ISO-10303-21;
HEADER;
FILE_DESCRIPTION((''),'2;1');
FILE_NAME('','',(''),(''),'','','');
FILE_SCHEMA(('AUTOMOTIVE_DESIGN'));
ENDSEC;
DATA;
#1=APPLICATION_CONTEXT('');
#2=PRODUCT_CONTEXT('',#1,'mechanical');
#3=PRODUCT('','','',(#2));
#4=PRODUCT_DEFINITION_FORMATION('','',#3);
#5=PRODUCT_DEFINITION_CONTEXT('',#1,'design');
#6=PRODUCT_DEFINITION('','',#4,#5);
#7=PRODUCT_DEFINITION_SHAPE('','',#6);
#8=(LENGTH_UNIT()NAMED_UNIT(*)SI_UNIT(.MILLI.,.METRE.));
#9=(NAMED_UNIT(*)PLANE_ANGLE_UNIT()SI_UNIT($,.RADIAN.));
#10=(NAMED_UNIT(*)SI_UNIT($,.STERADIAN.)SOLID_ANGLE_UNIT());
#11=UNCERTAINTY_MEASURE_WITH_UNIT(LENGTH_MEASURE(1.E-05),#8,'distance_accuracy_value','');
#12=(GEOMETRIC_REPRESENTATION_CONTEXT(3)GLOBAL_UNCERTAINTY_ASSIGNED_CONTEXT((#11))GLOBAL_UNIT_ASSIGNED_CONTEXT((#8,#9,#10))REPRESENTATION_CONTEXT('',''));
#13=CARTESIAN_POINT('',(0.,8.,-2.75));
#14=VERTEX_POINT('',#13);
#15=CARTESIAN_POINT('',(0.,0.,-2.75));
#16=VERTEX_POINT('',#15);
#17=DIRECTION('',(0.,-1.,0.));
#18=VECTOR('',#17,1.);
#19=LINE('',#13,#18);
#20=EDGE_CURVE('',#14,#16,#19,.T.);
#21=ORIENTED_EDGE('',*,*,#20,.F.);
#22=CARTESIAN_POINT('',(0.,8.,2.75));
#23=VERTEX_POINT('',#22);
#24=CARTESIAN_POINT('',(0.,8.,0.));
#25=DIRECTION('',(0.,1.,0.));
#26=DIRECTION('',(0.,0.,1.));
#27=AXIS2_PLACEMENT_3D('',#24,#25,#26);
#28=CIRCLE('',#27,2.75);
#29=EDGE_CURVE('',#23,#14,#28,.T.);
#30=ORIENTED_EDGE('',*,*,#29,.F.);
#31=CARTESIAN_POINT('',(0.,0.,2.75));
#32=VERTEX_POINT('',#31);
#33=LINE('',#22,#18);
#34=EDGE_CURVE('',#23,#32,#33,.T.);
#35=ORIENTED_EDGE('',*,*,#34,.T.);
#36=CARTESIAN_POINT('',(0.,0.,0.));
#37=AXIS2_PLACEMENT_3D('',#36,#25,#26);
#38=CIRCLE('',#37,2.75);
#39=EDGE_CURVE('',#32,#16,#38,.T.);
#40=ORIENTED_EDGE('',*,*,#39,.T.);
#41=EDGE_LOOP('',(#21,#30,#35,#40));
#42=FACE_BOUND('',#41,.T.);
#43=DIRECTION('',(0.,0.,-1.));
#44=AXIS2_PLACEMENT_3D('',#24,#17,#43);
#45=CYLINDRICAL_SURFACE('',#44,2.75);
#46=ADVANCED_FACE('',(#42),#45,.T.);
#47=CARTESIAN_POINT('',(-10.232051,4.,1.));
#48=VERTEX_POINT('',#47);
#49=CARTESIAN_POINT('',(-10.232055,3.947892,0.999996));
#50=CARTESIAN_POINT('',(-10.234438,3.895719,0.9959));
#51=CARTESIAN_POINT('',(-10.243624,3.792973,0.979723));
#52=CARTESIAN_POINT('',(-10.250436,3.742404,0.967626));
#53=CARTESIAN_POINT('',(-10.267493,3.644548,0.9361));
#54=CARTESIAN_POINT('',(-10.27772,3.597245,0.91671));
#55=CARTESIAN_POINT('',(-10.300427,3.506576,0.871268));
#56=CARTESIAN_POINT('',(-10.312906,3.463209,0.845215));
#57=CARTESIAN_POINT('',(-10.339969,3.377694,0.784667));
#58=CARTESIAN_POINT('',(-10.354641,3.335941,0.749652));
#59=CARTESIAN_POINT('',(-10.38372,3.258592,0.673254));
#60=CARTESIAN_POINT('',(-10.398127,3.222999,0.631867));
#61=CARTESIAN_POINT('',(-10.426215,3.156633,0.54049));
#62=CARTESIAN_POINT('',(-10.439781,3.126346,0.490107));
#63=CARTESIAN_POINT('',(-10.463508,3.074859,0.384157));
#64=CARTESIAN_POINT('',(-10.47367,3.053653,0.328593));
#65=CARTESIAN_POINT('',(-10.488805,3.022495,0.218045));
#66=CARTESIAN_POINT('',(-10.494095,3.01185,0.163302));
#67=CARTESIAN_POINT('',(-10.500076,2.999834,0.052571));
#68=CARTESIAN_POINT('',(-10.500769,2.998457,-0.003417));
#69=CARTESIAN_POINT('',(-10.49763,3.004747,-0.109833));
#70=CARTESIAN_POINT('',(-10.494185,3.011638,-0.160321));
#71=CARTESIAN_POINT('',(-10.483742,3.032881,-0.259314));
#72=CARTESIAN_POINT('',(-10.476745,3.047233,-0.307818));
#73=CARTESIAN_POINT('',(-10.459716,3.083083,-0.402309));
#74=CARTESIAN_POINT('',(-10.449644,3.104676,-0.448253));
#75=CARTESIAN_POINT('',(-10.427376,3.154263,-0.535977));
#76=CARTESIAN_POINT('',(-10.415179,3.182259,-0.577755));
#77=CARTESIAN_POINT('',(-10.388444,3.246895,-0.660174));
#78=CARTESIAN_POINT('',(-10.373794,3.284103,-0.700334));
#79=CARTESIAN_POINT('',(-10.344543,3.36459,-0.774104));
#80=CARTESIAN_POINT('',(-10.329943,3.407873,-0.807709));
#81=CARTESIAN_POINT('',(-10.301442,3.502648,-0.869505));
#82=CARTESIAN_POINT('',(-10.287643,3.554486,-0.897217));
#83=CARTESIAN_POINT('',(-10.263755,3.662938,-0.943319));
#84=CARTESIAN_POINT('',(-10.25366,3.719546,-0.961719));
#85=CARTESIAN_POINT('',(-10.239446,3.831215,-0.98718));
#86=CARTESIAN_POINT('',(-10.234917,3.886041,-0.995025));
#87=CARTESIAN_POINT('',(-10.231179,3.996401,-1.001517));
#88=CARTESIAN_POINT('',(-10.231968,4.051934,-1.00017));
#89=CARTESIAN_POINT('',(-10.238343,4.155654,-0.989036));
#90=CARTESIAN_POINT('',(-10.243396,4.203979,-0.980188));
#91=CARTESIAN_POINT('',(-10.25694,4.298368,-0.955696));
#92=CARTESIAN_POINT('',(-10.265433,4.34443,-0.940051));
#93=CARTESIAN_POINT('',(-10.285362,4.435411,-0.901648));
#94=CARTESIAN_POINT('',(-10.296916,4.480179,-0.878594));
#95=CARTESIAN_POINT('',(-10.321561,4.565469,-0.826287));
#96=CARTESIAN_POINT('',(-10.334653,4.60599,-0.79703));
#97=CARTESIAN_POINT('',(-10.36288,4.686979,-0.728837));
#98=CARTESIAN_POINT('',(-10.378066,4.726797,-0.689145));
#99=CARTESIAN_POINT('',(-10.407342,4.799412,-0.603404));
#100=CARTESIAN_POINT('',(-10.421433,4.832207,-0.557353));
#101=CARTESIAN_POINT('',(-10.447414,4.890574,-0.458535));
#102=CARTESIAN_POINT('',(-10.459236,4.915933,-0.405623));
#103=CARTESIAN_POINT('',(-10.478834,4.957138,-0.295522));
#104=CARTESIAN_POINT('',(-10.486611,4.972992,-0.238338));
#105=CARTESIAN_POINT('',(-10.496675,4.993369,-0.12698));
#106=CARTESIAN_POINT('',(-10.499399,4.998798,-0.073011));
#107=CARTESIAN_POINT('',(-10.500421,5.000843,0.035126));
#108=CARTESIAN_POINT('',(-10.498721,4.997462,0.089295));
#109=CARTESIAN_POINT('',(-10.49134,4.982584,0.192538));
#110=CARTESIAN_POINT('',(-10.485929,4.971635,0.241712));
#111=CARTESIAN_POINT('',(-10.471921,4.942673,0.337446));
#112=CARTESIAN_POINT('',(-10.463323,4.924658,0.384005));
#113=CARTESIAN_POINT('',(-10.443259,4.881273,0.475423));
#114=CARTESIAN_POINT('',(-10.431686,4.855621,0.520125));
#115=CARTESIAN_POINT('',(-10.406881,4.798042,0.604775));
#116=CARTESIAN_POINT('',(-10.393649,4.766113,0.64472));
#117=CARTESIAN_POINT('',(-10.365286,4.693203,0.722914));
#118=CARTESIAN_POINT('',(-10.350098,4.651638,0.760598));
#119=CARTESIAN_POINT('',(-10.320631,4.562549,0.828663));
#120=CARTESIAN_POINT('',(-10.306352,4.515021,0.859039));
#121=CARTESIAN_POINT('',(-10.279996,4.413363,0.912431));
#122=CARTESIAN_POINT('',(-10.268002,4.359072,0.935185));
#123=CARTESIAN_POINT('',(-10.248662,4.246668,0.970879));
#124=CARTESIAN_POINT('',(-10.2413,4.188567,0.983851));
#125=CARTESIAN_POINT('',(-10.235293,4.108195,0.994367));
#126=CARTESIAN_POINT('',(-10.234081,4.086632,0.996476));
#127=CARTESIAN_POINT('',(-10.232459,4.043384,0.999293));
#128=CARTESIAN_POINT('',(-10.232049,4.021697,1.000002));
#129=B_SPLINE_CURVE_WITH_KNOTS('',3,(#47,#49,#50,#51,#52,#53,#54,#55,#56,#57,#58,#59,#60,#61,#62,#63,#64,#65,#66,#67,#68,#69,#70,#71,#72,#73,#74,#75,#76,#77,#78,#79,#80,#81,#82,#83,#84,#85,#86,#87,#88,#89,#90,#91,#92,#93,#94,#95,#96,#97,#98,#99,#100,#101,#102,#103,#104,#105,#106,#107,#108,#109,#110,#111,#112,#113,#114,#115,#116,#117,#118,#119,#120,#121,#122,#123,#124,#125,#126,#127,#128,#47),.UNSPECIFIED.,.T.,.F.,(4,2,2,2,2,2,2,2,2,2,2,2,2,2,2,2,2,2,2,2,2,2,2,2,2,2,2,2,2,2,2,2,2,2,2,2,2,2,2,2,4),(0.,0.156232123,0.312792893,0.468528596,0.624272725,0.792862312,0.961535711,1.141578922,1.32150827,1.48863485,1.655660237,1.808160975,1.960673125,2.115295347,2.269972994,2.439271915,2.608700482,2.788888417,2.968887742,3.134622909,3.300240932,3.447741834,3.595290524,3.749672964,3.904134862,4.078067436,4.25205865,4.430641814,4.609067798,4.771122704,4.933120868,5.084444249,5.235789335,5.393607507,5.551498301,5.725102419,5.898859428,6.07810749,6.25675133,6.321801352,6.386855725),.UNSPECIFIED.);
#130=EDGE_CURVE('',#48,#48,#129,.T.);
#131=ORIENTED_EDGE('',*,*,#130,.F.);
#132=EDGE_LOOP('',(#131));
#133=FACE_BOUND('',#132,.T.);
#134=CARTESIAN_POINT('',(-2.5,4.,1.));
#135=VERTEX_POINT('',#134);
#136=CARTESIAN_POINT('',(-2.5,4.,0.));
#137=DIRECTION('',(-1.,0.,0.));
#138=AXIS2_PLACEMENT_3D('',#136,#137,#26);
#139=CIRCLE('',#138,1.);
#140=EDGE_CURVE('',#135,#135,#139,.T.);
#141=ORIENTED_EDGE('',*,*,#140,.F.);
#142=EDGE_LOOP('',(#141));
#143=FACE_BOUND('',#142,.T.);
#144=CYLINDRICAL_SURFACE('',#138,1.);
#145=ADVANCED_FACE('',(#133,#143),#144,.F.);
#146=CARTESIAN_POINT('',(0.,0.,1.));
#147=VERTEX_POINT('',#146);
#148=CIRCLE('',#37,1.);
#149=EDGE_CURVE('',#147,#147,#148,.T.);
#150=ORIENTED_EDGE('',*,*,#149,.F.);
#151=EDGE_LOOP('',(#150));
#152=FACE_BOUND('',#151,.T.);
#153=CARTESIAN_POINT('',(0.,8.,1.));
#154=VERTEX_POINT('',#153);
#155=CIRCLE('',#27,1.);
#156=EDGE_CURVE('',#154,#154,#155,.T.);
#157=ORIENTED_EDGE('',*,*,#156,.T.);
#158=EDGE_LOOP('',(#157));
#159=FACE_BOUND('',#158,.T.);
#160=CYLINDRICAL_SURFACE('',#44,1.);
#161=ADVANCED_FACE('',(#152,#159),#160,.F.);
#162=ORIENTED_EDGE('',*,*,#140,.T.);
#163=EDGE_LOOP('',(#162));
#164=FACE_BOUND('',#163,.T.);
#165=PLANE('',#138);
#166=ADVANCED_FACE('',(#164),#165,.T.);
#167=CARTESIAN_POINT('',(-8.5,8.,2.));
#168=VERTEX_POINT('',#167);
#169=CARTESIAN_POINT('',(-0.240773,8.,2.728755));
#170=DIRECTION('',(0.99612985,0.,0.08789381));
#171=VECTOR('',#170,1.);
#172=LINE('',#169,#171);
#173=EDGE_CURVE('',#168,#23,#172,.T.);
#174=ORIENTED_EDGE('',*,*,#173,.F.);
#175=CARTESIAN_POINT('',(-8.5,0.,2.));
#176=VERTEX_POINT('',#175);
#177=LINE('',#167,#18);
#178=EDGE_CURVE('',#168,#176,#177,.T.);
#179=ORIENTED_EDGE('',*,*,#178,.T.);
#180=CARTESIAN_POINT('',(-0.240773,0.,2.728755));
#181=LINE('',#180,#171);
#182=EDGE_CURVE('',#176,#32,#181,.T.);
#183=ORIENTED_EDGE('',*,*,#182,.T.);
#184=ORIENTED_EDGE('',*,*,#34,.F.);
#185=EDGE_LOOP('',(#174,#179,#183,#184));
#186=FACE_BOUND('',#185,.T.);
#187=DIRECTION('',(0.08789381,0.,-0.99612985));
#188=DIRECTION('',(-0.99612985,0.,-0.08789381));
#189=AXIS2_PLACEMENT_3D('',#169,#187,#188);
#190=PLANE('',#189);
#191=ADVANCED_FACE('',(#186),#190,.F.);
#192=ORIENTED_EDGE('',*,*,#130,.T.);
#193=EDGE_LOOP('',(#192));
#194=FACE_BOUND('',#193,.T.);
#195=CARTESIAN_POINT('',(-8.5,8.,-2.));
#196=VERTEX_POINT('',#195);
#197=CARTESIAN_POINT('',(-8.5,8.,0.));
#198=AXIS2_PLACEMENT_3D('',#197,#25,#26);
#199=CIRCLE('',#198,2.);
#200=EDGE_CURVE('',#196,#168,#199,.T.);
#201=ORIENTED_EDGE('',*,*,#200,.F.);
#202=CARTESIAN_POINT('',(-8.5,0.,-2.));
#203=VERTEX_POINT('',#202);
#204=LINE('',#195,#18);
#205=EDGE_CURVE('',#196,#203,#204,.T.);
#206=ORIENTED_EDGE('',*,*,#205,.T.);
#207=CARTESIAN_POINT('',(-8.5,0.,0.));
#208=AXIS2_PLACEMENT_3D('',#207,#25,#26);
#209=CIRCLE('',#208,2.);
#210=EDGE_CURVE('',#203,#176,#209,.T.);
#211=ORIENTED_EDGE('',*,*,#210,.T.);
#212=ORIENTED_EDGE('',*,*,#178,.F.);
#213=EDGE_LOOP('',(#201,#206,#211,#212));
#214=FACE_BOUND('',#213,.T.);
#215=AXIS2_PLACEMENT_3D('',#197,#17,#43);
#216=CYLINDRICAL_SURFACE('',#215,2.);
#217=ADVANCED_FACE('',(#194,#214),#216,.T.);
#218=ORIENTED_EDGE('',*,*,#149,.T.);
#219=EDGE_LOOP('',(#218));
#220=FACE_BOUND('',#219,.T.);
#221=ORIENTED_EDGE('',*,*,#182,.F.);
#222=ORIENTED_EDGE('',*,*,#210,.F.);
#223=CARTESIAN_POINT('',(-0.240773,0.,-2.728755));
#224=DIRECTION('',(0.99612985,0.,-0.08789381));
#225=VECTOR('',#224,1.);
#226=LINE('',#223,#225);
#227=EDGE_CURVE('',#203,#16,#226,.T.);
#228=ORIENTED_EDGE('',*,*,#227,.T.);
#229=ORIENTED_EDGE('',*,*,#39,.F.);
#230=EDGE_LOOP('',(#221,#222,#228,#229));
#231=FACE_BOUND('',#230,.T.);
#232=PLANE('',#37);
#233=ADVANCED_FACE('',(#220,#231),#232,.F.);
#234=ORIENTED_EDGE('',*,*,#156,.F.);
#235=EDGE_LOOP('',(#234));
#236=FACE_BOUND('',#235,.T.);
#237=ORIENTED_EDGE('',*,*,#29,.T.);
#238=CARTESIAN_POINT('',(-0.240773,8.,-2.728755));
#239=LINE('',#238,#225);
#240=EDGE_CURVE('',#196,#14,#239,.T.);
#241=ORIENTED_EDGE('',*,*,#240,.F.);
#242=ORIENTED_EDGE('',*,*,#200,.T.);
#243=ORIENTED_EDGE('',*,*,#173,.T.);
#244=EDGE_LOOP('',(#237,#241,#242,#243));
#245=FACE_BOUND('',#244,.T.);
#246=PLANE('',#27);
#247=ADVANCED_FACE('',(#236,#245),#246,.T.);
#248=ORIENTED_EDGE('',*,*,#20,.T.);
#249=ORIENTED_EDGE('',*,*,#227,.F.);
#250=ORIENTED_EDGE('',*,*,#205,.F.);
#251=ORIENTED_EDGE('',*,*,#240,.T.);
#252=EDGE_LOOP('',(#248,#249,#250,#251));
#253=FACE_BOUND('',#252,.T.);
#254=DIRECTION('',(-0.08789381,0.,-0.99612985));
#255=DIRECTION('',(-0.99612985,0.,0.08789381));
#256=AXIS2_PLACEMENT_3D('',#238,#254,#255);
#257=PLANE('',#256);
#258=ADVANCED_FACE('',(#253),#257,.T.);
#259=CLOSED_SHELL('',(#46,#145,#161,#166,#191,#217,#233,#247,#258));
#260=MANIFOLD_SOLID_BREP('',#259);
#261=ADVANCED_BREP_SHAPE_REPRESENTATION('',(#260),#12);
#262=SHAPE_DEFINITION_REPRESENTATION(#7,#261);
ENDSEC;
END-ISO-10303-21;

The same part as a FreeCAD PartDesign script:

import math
import FreeCAD as App
import Part
import Sketcher

V = App.Vector

doc = App.newDocument("Part")
body = doc.addObject("PartDesign::Body", "Body")

# Sketch on XZ plane
sketch1 = doc.addObject("Sketcher::SketchObject", "Sketch")
body.addObject(sketch1)
sketch1.AttachmentSupport = (doc.XZ_Plane, [""])
sketch1.MapMode = "FlatFace"
sketch1.addGeometry([
    Part.LineSegment(V(-0.481545, -2.707511, 0), V(-8.5, -2, 0)),  # 0
    Part.ArcOfCircle(Part.Circle(V(-8.5, 0, 0), V(0, 0, 1), 2), math.radians(90), math.radians(270)),  # 1
    Part.LineSegment(V(-8.5, 2, 0), V(-0.481545, 2.707511, 0)),  # 2
    Part.LineSegment(V(-0.481545, 2.707511, 0), V(0, 2.75, 0)),  # 3
    Part.ArcOfCircle(Part.Circle(V(0, 0, 0), V(0, 0, 1), 2.75), math.radians(-90), math.radians(90)),  # 4
    Part.LineSegment(V(0, -2.75, 0), V(-0.481545, -2.707511, 0)),  # 5
    Part.Circle(V(0, 0, 0), V(0, 0, 1), 1),  # 6
], False)
sketch1.addConstraint([
    Sketcher.Constraint("Coincident", 0, 2, 1, 2),
    Sketcher.Constraint("Coincident", 1, 1, 2, 1),
    Sketcher.Constraint("Coincident", 2, 2, 3, 1),
    Sketcher.Constraint("Coincident", 3, 2, 4, 2),
    Sketcher.Constraint("Coincident", 4, 1, 5, 1),
    Sketcher.Constraint("Coincident", 5, 2, 0, 1),
    Sketcher.Constraint("Coincident", 4, 3, -1, 1),
    Sketcher.Constraint("Coincident", 6, 3, -1, 1),
    Sketcher.Constraint("Symmetric", 0, 2, 1, 1, -1),
    Sketcher.Constraint("Symmetric", 2, 2, 5, 2, -1),
    Sketcher.Constraint("PointOnObject", 3, 2, -2),
    Sketcher.Constraint("PointOnObject", 4, 1, -2),
    Sketcher.Constraint("Parallel", 2, 3),
    Sketcher.Constraint("Vertical", 1, 3, 0, 2),
    Sketcher.Constraint("Diameter", 6, 2.0),
    Sketcher.Constraint("Radius", 1, 2.0),
    Sketcher.Constraint("Radius", 4, 2.75),
    Sketcher.Constraint("DistanceX", 1, 3, -1, 1, 8.5),
    Sketcher.Constraint("Distance", 0, 8.049608),
])
pad1 = doc.addObject("PartDesign::Pad", "Pad")
body.addObject(pad1)
pad1.Profile = sketch1
pad1.Length = 8
pad1.Reversed = True

# Sketch on YZ plane
sketch2 = doc.addObject("Sketcher::SketchObject", "Sketch001")
body.addObject(sketch2)
sketch2.AttachmentSupport = (doc.YZ_Plane, [""])
sketch2.MapMode = "FlatFace"
sketch2.AttachmentOffset = App.Placement(V(0, 0, -10.5), App.Rotation())
sketch2.addGeometry(Part.Circle(V(4, 0, 0), V(0, 0, 1), 1), False)
sketch2.addConstraint([
    Sketcher.Constraint("PointOnObject", 0, 3, -1),
    Sketcher.Constraint("Diameter", 0, 2.0),
    Sketcher.Constraint("DistanceX", -1, 1, 0, 3, 4.0),
])
pocket1 = doc.addObject("PartDesign::Pocket", "Pocket")
body.addObject(pocket1)
pocket1.Profile = sketch2
pocket1.Length = 8
pocket1.Reversed = True

doc.recompute()
